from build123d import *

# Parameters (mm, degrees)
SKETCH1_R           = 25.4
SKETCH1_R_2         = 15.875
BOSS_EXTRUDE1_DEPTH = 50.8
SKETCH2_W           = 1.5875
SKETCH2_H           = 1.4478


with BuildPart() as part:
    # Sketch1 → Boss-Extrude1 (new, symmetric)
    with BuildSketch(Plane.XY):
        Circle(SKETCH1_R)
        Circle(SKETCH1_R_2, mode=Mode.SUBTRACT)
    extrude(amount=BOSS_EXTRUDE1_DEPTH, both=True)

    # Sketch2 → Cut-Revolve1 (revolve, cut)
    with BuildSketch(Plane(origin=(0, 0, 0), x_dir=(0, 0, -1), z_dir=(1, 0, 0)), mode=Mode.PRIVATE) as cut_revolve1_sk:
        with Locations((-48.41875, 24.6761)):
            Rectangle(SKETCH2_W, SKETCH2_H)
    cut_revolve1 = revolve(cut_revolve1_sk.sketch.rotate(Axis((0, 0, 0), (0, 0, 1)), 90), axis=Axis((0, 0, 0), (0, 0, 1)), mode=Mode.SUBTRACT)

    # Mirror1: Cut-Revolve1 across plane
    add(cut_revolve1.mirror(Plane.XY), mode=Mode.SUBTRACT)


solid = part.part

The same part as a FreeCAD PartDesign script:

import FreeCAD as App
import Part
import Sketcher
from FreeCAD import Vector
Q = App.Units.Quantity


def add_polygon(sketch, points):
    """Adds a closed chain of lines whose ends are joined by coincident constraints."""
    first, n = sketch.GeometryCount, len(points)
    for a, b in zip(points, points[1:] + points[:1]):
        sketch.addGeometry(Part.LineSegment(App.Vector(*a, 0), App.Vector(*b, 0)), False)
    for i in range(n):
        sketch.addConstraint(Sketcher.Constraint("Coincident", first + i, 2, first + (i + 1) % n, 1))

doc = App.newDocument("Part")
body = doc.addObject("PartDesign::Body", "Body")

sketch1 = body.newObject("Sketcher::SketchObject", "Sketch")
sketch1.AttachmentSupport = (doc.getObject("XY_Plane"), [""])
sketch1.MapMode = "FlatFace"
sketch1.addGeometry([
    Part.Circle(Vector(0, 0, 0), Vector(0, 0, 1), 25.4),
    Part.Circle(Vector(0, 0, 0), Vector(0, 0, 1), 15.875),
], False)
sketch1.addConstraint([
    Sketcher.Constraint("Coincident", 0, 3, -1, 1),
    Sketcher.Constraint("Coincident", 1, 3, -1, 1),
    Sketcher.Constraint("Diameter", 0, Q("2 in")),
    Sketcher.Constraint("Diameter", 1, Q("1.25 in")),
])
pad1 = body.newObject("PartDesign::Pad", "Pad")
pad1.Profile = sketch1
pad1.Length = Q("4 in")
pad1.Midplane = True

sketch2 = body.newObject("Sketcher::SketchObject", "Sketch001")
sketch2.AttachmentSupport = (doc.getObject("YZ_Plane"), [""])
sketch2.MapMode = "FlatFace"
add_polygon(sketch2, [(25.4, 49.2125), (23.9522, 49.2125), (23.9522, 47.625), (25.4, 47.625)])
sketch2.addConstraint([
    Sketcher.Constraint("Horizontal", 0),
    Sketcher.Constraint("Vertical", 1),
    Sketcher.Constraint("Horizontal", 2),
    Sketcher.Constraint("Vertical", 3),
    Sketcher.Constraint("DistanceX", -1, 1, 2, 2, Q("1 in")),
    Sketcher.Constraint("DistanceX", 0, 2, 0, 1, Q("0.057 in")),
    Sketcher.Constraint("DistanceY", 1, 2, 1, 1, Q("0.0625 in")),
    Sketcher.Constraint("DistanceY", -1, 1, 0, 2, Q("1.9375 in")),
])
groove = body.newObject("PartDesign::Groove", "Groove")
groove.Profile = sketch2
groove.ReferenceAxis = (sketch2, ["V_Axis"])
groove.Angle = 360
doc.recompute()

mirrored = body.newObject("PartDesign::Mirrored", "Mirrored")
mirrored.Originals = [groove]
mirrored.MirrorPlane = (doc.getObject("XY_Plane"), [""])
body.Tip = mirrored

doc.recompute()
